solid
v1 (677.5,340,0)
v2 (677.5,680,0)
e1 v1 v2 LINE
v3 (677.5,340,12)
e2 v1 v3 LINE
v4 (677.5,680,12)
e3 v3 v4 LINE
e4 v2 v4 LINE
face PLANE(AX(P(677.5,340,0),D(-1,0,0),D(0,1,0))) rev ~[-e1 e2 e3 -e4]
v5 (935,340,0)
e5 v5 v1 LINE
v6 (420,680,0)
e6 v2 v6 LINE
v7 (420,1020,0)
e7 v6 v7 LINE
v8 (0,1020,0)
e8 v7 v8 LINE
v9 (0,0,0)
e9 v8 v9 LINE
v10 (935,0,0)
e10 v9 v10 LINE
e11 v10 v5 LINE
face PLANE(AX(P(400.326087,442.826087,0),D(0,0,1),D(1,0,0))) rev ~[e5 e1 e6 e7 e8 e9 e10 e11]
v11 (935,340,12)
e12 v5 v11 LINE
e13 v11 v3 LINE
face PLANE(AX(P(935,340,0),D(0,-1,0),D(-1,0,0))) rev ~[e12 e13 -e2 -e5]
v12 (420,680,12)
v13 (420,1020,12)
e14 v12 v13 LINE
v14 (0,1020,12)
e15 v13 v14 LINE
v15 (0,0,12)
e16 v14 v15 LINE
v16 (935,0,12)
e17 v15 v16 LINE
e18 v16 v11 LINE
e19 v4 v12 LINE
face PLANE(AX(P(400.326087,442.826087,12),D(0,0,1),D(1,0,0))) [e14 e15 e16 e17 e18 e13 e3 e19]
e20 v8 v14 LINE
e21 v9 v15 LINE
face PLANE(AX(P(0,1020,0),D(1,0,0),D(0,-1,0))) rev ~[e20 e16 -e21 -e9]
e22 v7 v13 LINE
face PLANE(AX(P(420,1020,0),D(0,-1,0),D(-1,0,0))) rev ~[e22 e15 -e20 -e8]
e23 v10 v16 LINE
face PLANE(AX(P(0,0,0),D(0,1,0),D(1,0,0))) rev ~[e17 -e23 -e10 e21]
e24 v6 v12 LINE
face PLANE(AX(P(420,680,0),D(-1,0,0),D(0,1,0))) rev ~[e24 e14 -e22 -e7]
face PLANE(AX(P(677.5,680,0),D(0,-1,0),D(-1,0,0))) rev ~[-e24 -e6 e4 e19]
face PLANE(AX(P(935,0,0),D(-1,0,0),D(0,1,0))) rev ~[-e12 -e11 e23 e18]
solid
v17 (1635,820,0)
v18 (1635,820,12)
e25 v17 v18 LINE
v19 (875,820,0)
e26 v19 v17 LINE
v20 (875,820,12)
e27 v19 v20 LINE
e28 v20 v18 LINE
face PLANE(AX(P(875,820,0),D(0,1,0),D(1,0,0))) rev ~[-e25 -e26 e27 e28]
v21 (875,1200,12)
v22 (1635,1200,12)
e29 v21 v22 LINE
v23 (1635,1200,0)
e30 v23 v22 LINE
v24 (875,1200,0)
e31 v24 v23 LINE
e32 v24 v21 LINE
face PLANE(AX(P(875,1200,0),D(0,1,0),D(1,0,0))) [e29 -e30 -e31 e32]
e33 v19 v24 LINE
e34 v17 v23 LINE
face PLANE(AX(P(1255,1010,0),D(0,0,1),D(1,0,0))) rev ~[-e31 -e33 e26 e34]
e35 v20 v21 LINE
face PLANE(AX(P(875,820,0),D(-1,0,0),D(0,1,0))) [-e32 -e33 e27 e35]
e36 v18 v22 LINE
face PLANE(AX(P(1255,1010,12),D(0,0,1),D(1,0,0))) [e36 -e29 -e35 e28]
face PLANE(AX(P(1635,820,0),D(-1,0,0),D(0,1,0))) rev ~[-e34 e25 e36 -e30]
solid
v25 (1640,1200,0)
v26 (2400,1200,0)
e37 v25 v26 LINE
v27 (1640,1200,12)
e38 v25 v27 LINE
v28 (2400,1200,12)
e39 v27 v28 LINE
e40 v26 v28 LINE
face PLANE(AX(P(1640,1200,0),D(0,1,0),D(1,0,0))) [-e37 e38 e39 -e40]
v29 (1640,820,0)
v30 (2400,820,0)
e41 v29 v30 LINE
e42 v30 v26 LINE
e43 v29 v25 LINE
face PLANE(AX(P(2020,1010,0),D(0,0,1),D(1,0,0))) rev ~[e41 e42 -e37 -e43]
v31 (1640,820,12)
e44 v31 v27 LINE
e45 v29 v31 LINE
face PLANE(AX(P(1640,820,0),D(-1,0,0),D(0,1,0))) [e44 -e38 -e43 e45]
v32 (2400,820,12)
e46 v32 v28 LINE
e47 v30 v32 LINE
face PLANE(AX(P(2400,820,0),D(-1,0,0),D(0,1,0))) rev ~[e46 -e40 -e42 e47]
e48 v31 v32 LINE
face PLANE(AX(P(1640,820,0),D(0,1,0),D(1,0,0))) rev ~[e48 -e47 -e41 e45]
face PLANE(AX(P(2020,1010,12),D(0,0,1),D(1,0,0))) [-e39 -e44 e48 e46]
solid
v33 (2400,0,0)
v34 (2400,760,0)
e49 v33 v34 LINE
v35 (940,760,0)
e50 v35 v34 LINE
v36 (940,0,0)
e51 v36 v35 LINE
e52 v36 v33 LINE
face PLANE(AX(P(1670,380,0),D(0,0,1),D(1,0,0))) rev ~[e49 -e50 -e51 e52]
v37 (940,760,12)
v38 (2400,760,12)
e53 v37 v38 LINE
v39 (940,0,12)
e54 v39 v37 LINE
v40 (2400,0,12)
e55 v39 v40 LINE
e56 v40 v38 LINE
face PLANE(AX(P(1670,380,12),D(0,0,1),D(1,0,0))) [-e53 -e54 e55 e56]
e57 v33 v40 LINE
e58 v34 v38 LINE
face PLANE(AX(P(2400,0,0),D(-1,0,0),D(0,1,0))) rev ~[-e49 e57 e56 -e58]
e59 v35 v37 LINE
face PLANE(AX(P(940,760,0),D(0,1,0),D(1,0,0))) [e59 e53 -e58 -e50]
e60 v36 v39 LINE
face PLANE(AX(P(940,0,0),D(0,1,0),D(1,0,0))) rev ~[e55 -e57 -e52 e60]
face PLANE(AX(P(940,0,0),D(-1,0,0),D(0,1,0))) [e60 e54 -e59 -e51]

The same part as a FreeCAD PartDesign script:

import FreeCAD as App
import Part
import Sketcher
from FreeCAD import Vector

doc = App.newDocument("Part")
body = doc.addObject("PartDesign::Body", "Body")
body.AllowCompound = True

# Sketch on XY plane
sketch1 = body.newObject("Sketcher::SketchObject", "Sketch")
sketch1.AttachmentSupport = (doc.getObject("XY_Plane"), [""])
sketch1.MapMode = "FlatFace"
sketch1.addGeometry([
    Part.LineSegment(Vector(0, 1020, 0), Vector(0, 0, 0)),  # 0
    Part.LineSegment(Vector(0, 0, 0), Vector(935, 0, 0)),  # 1
    Part.LineSegment(Vector(935, 0, 0), Vector(935, 340, 0)),  # 2
    Part.LineSegment(Vector(935, 340, 0), Vector(678, 340, 0)),  # 3
    Part.LineSegment(Vector(678, 340, 0), Vector(678, 680, 0)),  # 4
    Part.LineSegment(Vector(678, 680, 0), Vector(420, 680, 0)),  # 5
    Part.LineSegment(Vector(420, 680, 0), Vector(420, 1020, 0)),  # 6
    Part.LineSegment(Vector(420, 1020, 0), Vector(0, 1020, 0)),  # 7
    Part.LineSegment(Vector(940, 760, 0), Vector(940, 0, 0)),  # 8
    Part.LineSegment(Vector(940, 0, 0), Vector(2400, 0, 0)),  # 9
    Part.LineSegment(Vector(2400, 0, 0), Vector(2400, 760, 0)),  # 10
    Part.LineSegment(Vector(2400, 760, 0), Vector(940, 760, 0)),  # 11
    Part.LineSegment(Vector(875, 1200, 0), Vector(875, 820, 0)),  # 12
    Part.LineSegment(Vector(875, 820, 0), Vector(1635, 820, 0)),  # 13
    Part.LineSegment(Vector(1635, 820, 0), Vector(1635, 1200, 0)),  # 14
    Part.LineSegment(Vector(1635, 1200, 0), Vector(875, 1200, 0)),  # 15
    Part.LineSegment(Vector(1640, 1200, 0), Vector(1640, 820, 0)),  # 16
    Part.LineSegment(Vector(1640, 820, 0), Vector(2400, 820, 0)),  # 17
    Part.LineSegment(Vector(2400, 820, 0), Vector(2400, 1200, 0)),  # 18
    Part.LineSegment(Vector(2400, 1200, 0), Vector(1640, 1200, 0)),  # 19
], False)
sketch1.addConstraint([
    Sketcher.Constraint("Coincident", 0, 2, 1, 1),
    Sketcher.Constraint("Coincident", 1, 2, 2, 1),
    Sketcher.Constraint("Coincident", 2, 2, 3, 1),
    Sketcher.Constraint("Coincident", 3, 2, 4, 1),
    Sketcher.Constraint("Coincident", 4, 2, 5, 1),
    Sketcher.Constraint("Coincident", 5, 2, 6, 1),
    Sketcher.Constraint("Coincident", 6, 2, 7, 1),
    Sketcher.Constraint("Coincident", 7, 2, 0, 1),
    Sketcher.Constraint("Coincident", 8, 2, 9, 1),
    Sketcher.Constraint("Coincident", 9, 2, 10, 1),
    Sketcher.Constraint("Coincident", 10, 2, 11, 1),
    Sketcher.Constraint("Coincident", 11, 2, 8, 1),
    Sketcher.Constraint("Coincident", 12, 2, 13, 1),
    Sketcher.Constraint("Coincident", 13, 2, 14, 1),
    Sketcher.Constraint("Coincident", 14, 2, 15, 1),
    Sketcher.Constraint("Coincident", 15, 2, 12, 1),
    Sketcher.Constraint("Coincident", 16, 2, 17, 1),
    Sketcher.Constraint("Coincident", 17, 2, 18, 1),
    Sketcher.Constraint("Coincident", 18, 2, 19, 1),
    Sketcher.Constraint("Coincident", 19, 2, 16, 1),
    Sketcher.Constraint("Vertical", 0),
    Sketcher.Constraint("Horizontal", 1),
    Sketcher.Constraint("Vertical", 2),
    Sketcher.Constraint("Horizontal", 3),
    Sketcher.Constraint("Vertical", 4),
    Sketcher.Constraint("Horizontal", 5),
    Sketcher.Constraint("Vertical", 6),
    Sketcher.Constraint("Horizontal", 7),
    Sketcher.Constraint("Vertical", 8),
    Sketcher.Constraint("Horizontal", 9),
    Sketcher.Constraint("Vertical", 10),
    Sketcher.Constraint("Horizontal", 11),
    Sketcher.Constraint("Vertical", 12),
    Sketcher.Constraint("Horizontal", 13),
    Sketcher.Constraint("Vertical", 14),
    Sketcher.Constraint("Horizontal", 15),
    Sketcher.Constraint("Vertical", 16),
    Sketcher.Constraint("Horizontal", 17),
    Sketcher.Constraint("Vertical", 18),
    Sketcher.Constraint("Horizontal", 19),
    Sketcher.Constraint("Coincident", 0, 2, -1, 1),
    Sketcher.Constraint("PointOnObject", 8, 2, -1),
    Sketcher.Constraint("Horizontal", 13, 2, 16, 2),
    Sketcher.Constraint("Horizontal", 15, 2, 18, 2),
    Sketcher.Constraint("Vertical", 10, 2, 17, 2),
    Sketcher.Constraint("Equal", 3, 5),
    Sketcher.Constraint("Equal", 15, 17),
    Sketcher.Constraint("Equal", 2, 4),
    Sketcher.Constraint("Equal", 4, 6),
    Sketcher.Constraint("Equal", 19, 8),
    Sketcher.Constraint("DistanceX", 1, 1, 1, 2, 935.0),
    Sketcher.Constraint("DistanceX", 7, 2, 7, 1, 420.0),
    Sketcher.Constraint("DistanceX", 9, 1, 9, 2, 1460.0),
    Sketcher.Constraint("DistanceX", 13, 1, 13, 2, 760.0),
    Sketcher.Constraint("DistanceY", 0, 2, 0, 1, 1020.0),
    Sketcher.Constraint("DistanceY", 12, 2, 12, 1, 380.0),
    Sketcher.Constraint("DistanceX", -1, 1, 8, 2, 940.0),
    Sketcher.Constraint("DistanceX", -1, 1, 12, 2, 875.0),
    Sketcher.Constraint("DistanceY", -1, 1, 12, 2, 820.0),
])
pad1 = body.newObject("PartDesign::Pad", "Pad")
pad1.Profile = sketch1
pad1.Length = 12

doc.recompute()
